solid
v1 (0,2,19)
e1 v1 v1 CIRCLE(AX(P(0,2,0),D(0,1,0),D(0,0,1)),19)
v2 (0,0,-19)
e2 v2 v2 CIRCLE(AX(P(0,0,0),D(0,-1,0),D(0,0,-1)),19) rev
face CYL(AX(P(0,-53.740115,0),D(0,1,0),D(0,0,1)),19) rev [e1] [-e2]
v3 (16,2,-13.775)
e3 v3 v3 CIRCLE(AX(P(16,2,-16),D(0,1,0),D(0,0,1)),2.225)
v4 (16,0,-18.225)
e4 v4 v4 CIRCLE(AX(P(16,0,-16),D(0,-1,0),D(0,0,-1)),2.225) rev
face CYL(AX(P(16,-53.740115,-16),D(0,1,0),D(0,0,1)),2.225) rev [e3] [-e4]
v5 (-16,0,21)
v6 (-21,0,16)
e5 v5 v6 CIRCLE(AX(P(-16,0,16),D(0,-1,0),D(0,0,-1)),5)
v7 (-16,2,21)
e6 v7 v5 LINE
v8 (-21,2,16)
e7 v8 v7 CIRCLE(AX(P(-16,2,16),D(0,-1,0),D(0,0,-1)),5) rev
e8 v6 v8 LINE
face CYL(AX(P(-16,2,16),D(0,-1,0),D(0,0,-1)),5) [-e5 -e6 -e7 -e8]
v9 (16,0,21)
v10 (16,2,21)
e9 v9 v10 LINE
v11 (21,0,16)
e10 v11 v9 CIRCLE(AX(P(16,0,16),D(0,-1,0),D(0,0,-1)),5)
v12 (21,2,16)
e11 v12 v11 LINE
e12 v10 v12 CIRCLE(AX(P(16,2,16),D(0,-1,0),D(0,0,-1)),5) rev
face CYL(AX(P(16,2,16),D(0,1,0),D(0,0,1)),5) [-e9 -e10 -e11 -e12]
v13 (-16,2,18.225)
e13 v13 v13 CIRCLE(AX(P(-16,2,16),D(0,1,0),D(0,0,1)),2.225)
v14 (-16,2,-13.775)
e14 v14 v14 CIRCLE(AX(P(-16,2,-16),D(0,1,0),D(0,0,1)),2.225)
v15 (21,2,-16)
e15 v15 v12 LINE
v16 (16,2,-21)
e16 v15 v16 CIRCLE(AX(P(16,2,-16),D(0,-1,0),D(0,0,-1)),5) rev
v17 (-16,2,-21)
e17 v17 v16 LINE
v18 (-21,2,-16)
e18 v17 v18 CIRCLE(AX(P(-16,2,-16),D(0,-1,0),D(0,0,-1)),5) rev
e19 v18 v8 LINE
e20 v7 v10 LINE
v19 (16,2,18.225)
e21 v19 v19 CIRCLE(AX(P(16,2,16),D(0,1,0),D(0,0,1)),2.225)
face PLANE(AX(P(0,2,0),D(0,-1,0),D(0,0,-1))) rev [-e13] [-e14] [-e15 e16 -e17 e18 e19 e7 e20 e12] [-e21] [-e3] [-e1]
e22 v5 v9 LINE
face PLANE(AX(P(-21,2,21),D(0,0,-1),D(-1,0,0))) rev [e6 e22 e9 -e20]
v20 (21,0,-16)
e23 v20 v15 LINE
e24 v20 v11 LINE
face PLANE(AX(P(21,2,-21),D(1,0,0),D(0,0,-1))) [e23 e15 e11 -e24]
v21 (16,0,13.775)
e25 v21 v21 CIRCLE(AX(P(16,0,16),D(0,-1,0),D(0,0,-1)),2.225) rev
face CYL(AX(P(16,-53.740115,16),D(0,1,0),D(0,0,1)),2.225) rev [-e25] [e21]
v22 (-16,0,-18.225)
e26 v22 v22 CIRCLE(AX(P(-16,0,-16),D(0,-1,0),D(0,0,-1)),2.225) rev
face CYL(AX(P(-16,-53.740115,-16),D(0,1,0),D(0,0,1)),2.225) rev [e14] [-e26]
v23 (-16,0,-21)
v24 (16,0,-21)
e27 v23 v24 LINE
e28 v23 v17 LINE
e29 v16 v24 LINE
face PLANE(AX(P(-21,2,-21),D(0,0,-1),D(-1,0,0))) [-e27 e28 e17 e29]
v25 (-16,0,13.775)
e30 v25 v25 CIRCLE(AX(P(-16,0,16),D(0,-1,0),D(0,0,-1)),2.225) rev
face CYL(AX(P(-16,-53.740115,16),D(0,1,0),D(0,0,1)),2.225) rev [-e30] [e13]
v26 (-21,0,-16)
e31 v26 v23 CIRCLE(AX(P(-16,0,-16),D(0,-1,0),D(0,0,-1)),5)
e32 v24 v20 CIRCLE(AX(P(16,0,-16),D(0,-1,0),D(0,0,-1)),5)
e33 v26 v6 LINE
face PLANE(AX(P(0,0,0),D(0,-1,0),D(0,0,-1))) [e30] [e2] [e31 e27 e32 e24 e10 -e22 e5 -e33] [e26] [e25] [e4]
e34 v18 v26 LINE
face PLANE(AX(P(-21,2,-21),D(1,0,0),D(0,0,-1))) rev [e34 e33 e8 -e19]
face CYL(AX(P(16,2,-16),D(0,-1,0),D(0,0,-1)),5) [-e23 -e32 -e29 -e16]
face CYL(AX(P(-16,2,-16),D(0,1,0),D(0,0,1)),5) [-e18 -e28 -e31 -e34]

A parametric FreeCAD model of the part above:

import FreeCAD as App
import Part
import Sketcher
Q = App.Units.Quantity


def edges_at(feature, points):
    """Names of the edges that pass closest to the given points."""
    edges = feature.Shape.Edges
    near = lambda p: min(range(len(edges)), key=lambda i: edges[i].distToShape(Part.Vertex(*p))[0])
    return sorted({f"Edge{near(p) + 1}" for p in points})


def add_polygon(sketch, points):
    """Adds a closed chain of lines whose ends are joined by coincident constraints."""
    first, n = sketch.GeometryCount, len(points)
    for a, b in zip(points, points[1:] + points[:1]):
        sketch.addGeometry(Part.LineSegment(App.Vector(*a, 0), App.Vector(*b, 0)), False)
    for i in range(n):
        sketch.addConstraint(Sketcher.Constraint("Coincident", first + i, 2, first + (i + 1) % n, 1))

doc = App.newDocument("Part")
body = doc.addObject("PartDesign::Body", "Body")

sketch1 = body.newObject("Sketcher::SketchObject", "Sketch")
sketch1.AttachmentSupport = (doc.getObject("XZ_Plane"), [""])
sketch1.MapMode = "FlatFace"
add_polygon(sketch1, [(-21, -21), (-21, 21), (21, 21), (21, -21)])
sketch1.addConstraint([
    Sketcher.Constraint("Vertical", 0),
    Sketcher.Constraint("Horizontal", 1),
    Sketcher.Constraint("Vertical", 2),
    Sketcher.Constraint("Horizontal", 3),
    Sketcher.Constraint("Symmetric", 0, 2, 2, 2, -1, 1),
    Sketcher.Constraint("Equal", 3, 0),
    Sketcher.Constraint("DistanceX", 1, 1, 1, 2, Q("42 mm")),
])
pad1 = body.newObject("PartDesign::Pad", "Pad")
pad1.Profile = sketch1
pad1.Length = 2
pad1.Reversed = True

sketch2 = body.newObject("Sketcher::SketchObject", "Sketch001")
sketch2.AttachmentSupport = (doc.getObject("XZ_Plane"), [""])
sketch2.MapMode = "FlatFace"
sketch2.AttachmentOffset = App.Placement(App.Vector(0, 0, -2), App.Rotation())
sketch2.addGeometry([
    Part.Circle(App.Vector(-16, 16, 0), App.Vector(0, 0, 1), 2.2),
    Part.Circle(App.Vector(-16, -16, 0), App.Vector(0, 0, 1), 2.2),
    Part.Circle(App.Vector(16, -16, 0), App.Vector(0, 0, 1), 2.2),
    Part.Circle(App.Vector(16, 16, 0), App.Vector(0, 0, 1), 2.2),
    Part.Circle(App.Vector(0, 0, 0), App.Vector(0, 0, 1), 19),
], False)
sketch2.addConstraint([
    Sketcher.Constraint("Coincident", 4, 3, -1, 1),
    Sketcher.Constraint("Equal", 0, 1),
    Sketcher.Constraint("Equal", 1, 2),
    Sketcher.Constraint("Equal", 2, 3),
    Sketcher.Constraint("Symmetric", 0, 3, 2, 3, -1, 1),
    Sketcher.Constraint("Symmetric", 1, 3, 3, 3, -1, 1),
    Sketcher.Constraint("Symmetric", 1, 3, 2, 3, -2),
    Sketcher.Constraint("Diameter", 4, Q("38 mm")),
    Sketcher.Constraint("Diameter", 0, Q("4.45 mm")),
    Sketcher.Constraint("DistanceX", 0, 3, -1, 1, Q("16 mm")),
    Sketcher.Constraint("DistanceY", -1, 1, 0, 3, Q("16 mm")),
])
pocket1 = body.newObject("PartDesign::Pocket", "Pocket")
pocket1.Profile = sketch2
pocket1.Length = 2
pocket1.Reversed = True
doc.recompute()

fillet = body.newObject("PartDesign::Fillet", "Fillet")
fillet.Base = (pocket1, edges_at(pocket1, [
    (-21, 1, 21),
    (-21, 1, -21),
    (21, 1, -21),
    (21, 1, 21),
]))
fillet.Radius = 5

doc.recompute()
